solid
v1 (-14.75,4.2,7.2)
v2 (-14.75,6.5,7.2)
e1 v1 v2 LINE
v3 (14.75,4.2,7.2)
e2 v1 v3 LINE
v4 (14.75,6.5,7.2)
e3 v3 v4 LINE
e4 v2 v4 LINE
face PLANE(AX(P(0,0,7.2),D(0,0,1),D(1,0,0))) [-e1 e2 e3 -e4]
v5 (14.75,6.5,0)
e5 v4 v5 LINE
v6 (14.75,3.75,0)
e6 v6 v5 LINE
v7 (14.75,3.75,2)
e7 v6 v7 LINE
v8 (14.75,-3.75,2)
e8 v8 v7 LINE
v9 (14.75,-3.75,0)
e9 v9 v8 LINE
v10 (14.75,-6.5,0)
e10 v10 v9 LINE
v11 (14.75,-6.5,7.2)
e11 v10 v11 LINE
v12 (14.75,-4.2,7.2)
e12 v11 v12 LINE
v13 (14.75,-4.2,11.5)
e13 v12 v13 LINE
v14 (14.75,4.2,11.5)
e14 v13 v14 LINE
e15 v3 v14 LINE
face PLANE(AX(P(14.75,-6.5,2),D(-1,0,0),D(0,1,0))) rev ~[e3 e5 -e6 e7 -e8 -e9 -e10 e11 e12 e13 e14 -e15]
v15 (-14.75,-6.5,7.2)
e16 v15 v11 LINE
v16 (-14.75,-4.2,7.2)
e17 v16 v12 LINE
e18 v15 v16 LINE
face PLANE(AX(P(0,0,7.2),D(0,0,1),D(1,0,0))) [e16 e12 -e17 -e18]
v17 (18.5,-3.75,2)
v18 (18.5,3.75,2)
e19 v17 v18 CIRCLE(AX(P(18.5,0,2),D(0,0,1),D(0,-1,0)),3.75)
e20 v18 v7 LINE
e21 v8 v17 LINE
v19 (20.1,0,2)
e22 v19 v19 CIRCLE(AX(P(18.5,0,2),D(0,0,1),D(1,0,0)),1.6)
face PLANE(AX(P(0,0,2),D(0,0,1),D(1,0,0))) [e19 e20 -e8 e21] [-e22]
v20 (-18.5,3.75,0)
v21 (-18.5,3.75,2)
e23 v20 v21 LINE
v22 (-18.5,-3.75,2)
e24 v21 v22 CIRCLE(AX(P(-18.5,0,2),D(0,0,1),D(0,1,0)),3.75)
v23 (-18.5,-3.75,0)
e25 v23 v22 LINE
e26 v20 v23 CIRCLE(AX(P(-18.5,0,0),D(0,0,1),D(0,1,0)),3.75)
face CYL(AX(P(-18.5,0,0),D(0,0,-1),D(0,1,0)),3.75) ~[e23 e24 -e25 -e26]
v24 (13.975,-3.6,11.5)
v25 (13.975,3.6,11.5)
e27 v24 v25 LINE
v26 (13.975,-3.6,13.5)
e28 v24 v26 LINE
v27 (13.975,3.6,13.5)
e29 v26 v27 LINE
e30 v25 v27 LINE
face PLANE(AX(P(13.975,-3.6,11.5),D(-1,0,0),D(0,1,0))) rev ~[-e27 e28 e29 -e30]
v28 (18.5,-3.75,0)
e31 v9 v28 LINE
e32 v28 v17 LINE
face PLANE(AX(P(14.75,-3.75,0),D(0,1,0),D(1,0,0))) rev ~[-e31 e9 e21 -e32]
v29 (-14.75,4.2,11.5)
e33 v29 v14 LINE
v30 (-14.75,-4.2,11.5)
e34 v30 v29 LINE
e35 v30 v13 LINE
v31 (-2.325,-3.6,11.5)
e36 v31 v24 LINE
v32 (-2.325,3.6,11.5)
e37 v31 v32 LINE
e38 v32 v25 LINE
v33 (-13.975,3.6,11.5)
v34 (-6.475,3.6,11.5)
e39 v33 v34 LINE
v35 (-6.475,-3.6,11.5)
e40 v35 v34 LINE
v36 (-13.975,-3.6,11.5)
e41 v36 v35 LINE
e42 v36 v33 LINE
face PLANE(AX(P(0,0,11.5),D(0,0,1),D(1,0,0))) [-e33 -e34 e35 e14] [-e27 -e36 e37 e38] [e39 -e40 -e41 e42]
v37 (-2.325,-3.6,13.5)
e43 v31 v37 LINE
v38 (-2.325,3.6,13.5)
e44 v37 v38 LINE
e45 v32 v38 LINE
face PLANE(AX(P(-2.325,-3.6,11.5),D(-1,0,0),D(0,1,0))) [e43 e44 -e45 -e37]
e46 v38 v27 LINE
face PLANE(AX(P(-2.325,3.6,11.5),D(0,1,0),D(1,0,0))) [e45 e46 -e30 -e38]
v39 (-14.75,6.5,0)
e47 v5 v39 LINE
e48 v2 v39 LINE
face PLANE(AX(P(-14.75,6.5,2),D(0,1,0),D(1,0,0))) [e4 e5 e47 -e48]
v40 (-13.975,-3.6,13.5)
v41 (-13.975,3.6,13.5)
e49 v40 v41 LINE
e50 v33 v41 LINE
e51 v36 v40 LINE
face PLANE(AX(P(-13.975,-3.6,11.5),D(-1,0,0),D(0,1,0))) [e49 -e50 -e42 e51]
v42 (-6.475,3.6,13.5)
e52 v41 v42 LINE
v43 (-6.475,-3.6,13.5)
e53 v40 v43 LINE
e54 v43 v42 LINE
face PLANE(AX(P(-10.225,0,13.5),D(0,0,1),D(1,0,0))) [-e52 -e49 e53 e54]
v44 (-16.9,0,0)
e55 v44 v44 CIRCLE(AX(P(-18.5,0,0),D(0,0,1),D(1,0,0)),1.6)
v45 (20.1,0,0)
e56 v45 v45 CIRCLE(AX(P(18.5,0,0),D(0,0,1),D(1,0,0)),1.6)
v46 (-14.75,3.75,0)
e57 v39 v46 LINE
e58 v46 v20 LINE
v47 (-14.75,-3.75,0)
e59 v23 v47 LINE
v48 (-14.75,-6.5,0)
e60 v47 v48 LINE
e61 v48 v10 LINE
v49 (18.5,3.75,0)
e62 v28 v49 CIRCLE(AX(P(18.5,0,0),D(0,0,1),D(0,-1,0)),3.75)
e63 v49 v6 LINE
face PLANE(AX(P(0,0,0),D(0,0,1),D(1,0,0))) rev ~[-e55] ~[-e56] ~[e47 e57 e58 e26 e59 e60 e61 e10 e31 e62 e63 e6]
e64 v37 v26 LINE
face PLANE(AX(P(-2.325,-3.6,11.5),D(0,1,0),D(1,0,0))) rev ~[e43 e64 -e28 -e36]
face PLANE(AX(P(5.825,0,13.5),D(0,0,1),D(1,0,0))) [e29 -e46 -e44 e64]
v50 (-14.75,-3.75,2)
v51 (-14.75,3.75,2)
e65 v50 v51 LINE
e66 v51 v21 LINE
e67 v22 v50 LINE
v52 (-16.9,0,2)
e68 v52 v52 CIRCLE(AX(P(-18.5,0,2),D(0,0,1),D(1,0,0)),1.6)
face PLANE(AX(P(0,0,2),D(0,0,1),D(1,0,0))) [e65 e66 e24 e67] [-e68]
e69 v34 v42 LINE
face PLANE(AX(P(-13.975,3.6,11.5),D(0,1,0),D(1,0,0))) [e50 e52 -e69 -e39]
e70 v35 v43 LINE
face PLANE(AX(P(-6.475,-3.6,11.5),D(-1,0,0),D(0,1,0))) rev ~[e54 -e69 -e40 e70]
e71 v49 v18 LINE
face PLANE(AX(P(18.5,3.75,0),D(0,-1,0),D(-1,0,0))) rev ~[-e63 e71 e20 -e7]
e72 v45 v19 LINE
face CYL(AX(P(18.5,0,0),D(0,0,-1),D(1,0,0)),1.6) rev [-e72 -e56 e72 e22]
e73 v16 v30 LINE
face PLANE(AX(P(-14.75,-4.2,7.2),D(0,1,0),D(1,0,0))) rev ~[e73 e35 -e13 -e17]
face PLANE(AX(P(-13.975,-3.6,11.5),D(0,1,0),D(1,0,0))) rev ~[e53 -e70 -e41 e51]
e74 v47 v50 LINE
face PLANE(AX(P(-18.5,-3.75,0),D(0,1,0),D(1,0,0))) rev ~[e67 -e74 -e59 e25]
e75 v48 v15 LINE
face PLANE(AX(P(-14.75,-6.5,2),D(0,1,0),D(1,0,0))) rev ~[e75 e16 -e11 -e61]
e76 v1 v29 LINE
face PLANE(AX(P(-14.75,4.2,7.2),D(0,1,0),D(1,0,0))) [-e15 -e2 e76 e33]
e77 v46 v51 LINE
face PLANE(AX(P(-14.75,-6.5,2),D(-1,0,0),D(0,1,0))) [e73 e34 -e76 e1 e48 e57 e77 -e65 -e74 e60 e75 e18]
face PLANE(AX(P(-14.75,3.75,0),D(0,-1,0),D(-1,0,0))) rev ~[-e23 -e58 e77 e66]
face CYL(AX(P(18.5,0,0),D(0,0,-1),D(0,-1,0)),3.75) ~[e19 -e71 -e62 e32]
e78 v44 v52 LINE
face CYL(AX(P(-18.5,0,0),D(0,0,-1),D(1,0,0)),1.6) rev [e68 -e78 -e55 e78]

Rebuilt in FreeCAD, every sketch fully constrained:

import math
import FreeCAD as App
import Part
import Sketcher

V = App.Vector


def add_polygon(sketch, points):
    """Adds a closed chain of lines whose ends are joined by coincident constraints."""
    first, n = sketch.GeometryCount, len(points)
    for a, b in zip(points, points[1:] + points[:1]):
        sketch.addGeometry(Part.LineSegment(App.Vector(*a, 0), App.Vector(*b, 0)), False)
    for i in range(n):
        sketch.addConstraint(Sketcher.Constraint("Coincident", first + i, 2, first + (i + 1) % n, 1))

doc = App.newDocument("Part")
params = doc.addObject("Spreadsheet::Sheet", "Params")
for row, (alias, value) in enumerate([
    ("sketch1_diameter", "3.2 mm"),
    ("sketch1_radius", "3.75 mm"),
    ("sketch1_width", "29.5 mm"),
    ("sketch1_height", "2.75 mm"),
    ("pad1_length", "2 mm"),
    ("sketch2_height", "13 mm"),
    ("sketch2_width", "29.5 mm"),
    ("pad2_length", "5.2 mm"),
    ("sketch3_width", "29.5 mm"),
    ("sketch3_height", "8.4 mm"),
    ("pad3_length", "4.3 mm"),
    ("sketch4_width", "16.3 mm"),
    ("sketch4_width2", "7.5 mm"),
    ("sketch4_height", "7.2 mm"),
    ("pad4_length", "2 mm"),
], start=1):
    params.set(f"A{row}", alias)
    params.set(f"B{row}", "=" + value)
    params.setAlias(f"B{row}", alias)

body = doc.addObject("PartDesign::Body", "Body")

sketch1 = doc.addObject("Sketcher::SketchObject", "Sketch")
body.addObject(sketch1)
sketch1.AttachmentSupport = (doc.XY_Plane, [""])
sketch1.MapMode = "FlatFace"
sketch1.addGeometry(Part.LineSegment(V(14.8, 6.5, 0), V(-14.8, 6.5, 0)), False)
sketch1.addGeometry(Part.LineSegment(V(-14.8, 6.5, 0), V(-14.8, 3.8, 0)), False)
sketch1.addGeometry(Part.LineSegment(V(-14.8, 3.8, 0), V(-18.5, 3.8, 0)), False)
sketch1.addGeometry(Part.ArcOfCircle(Part.Circle(V(-18.5, 0, 0), V(0, 0, 1), 3.8), math.radians(90), math.radians(270)), False)
sketch1.addGeometry(Part.LineSegment(V(-18.5, -3.8, 0), V(-14.8, -3.8, 0)), False)
sketch1.addGeometry(Part.LineSegment(V(-14.8, -3.8, 0), V(-14.8, -6.5, 0)), False)
sketch1.addGeometry(Part.LineSegment(V(-14.8, -6.5, 0), V(14.8, -6.5, 0)), False)
sketch1.addGeometry(Part.LineSegment(V(14.8, -6.5, 0), V(14.8, -3.8, 0)), False)
sketch1.addGeometry(Part.LineSegment(V(14.8, -3.8, 0), V(18.5, -3.8, 0)), False)
sketch1.addGeometry(Part.ArcOfCircle(Part.Circle(V(18.5, 0, 0), V(0, 0, 1), 3.8), math.radians(-90), math.radians(90)), False)
sketch1.addGeometry(Part.LineSegment(V(18.5, 3.8, 0), V(14.8, 3.8, 0)), False)
sketch1.addGeometry(Part.LineSegment(V(14.8, 3.8, 0), V(14.8, 6.5, 0)), False)
sketch1.addGeometry(Part.Circle(V(-18.5, 0, 0), V(0, 0, 1), 1.6), False)
sketch1.addGeometry(Part.Circle(V(18.5, 0, 0), V(0, 0, 1), 1.6), False)
sketch1.addConstraint(Sketcher.Constraint("Coincident", 0, 2, 1, 1))
sketch1.addConstraint(Sketcher.Constraint("Coincident", 1, 2, 2, 1))
sketch1.addConstraint(Sketcher.Constraint("Tangent", 2, 2, 3, 1))
sketch1.addConstraint(Sketcher.Constraint("Tangent", 3, 2, 4, 1))
sketch1.addConstraint(Sketcher.Constraint("Coincident", 4, 2, 5, 1))
sketch1.addConstraint(Sketcher.Constraint("Coincident", 5, 2, 6, 1))
sketch1.addConstraint(Sketcher.Constraint("Coincident", 6, 2, 7, 1))
sketch1.addConstraint(Sketcher.Constraint("Coincident", 7, 2, 8, 1))
sketch1.addConstraint(Sketcher.Constraint("Tangent", 8, 2, 9, 1))
sketch1.addConstraint(Sketcher.Constraint("Tangent", 9, 2, 10, 1))
sketch1.addConstraint(Sketcher.Constraint("Coincident", 10, 2, 11, 1))
sketch1.addConstraint(Sketcher.Constraint("Coincident", 11, 2, 0, 1))
sketch1.addConstraint(Sketcher.Constraint("Horizontal", 0))
sketch1.addConstraint(Sketcher.Constraint("Vertical", 1))
sketch1.addConstraint(Sketcher.Constraint("Horizontal", 2))
sketch1.addConstraint(Sketcher.Constraint("Horizontal", 4))
sketch1.addConstraint(Sketcher.Constraint("Vertical", 5))
sketch1.addConstraint(Sketcher.Constraint("Horizontal", 6))
sketch1.addConstraint(Sketcher.Constraint("Vertical", 7))
sketch1.addConstraint(Sketcher.Constraint("Horizontal", 8))
sketch1.addConstraint(Sketcher.Constraint("Horizontal", 10))
sketch1.addConstraint(Sketcher.Constraint("Vertical", 11))
sketch1.addConstraint(Sketcher.Constraint("Coincident", 12, 3, 3, 3))
sketch1.addConstraint(Sketcher.Constraint("Coincident", 13, 3, 9, 3))
sketch1.addConstraint(Sketcher.Constraint("Equal", 3, 9))
sketch1.addConstraint(Sketcher.Constraint("Equal", 12, 13))
sketch1.addConstraint(Sketcher.Constraint("Symmetric", 3, 3, 9, 3, -1, 1))
sketch1.addConstraint(Sketcher.Constraint("Symmetric", 0, 2, 6, 2, -1, 1))
sketch1.addConstraint(Sketcher.Constraint("Symmetric", 4, 2, 7, 2, -2))
sketch1.addConstraint(Sketcher.Constraint("Vertical", 7, 2, 10, 2))
sketch1.addConstraint(Sketcher.Constraint("Diameter", 12, 3.2))
sketch1.addConstraint(Sketcher.Constraint("Radius", 3, 3.75))
sketch1.addConstraint(Sketcher.Constraint("DistanceX", 0, 2, 0, 1, 29.5))
sketch1.addConstraint(Sketcher.Constraint("DistanceX", 3, 3, 9, 3, 37.0))
sketch1.addConstraint(Sketcher.Constraint("DistanceY", 1, 2, 1, 1, 2.75))
sketch1.setExpression("Constraints[30]", "Params.sketch1_diameter")
sketch1.setExpression("Constraints[31]", "Params.sketch1_radius")
sketch1.setExpression("Constraints[32]", "Params.sketch1_width")
sketch1.setExpression("Constraints[34]", "Params.sketch1_height")
pad1 = doc.addObject("PartDesign::Pad", "Pad")
body.addObject(pad1)
pad1.Profile = sketch1
pad1.setExpression("Length", "Params.pad1_length")

sketch2 = doc.addObject("Sketcher::SketchObject", "Sketch001")
body.addObject(sketch2)
sketch2.AttachmentSupport = (doc.XY_Plane, [""])
sketch2.MapMode = "FlatFace"
sketch2.AttachmentOffset = App.Placement(V(0, 0, 2), App.Rotation())
add_polygon(sketch2, [(-15, 6), (-15, -6), (15, -6), (15, 6)])
sketch2.addConstraint(Sketcher.Constraint("Vertical", 0))
sketch2.addConstraint(Sketcher.Constraint("Horizontal", 1))
sketch2.addConstraint(Sketcher.Constraint("Vertical", 2))
sketch2.addConstraint(Sketcher.Constraint("Horizontal", 3))
sketch2.addConstraint(Sketcher.Constraint("Symmetric", 0, 2, 2, 2, -1, 1))
sketch2.addConstraint(Sketcher.Constraint("DistanceY", 0, 2, 0, 1, 13.0))
sketch2.addConstraint(Sketcher.Constraint("DistanceX", 1, 1, 1, 2, 29.5))
sketch2.setExpression("Constraints[9]", "Params.sketch2_height")
sketch2.setExpression("Constraints[10]", "Params.sketch2_width")
pad2 = doc.addObject("PartDesign::Pad", "Pad001")
body.addObject(pad2)
pad2.Profile = sketch2
pad2.setExpression("Length", "Params.pad2_length")

sketch3 = doc.addObject("Sketcher::SketchObject", "Sketch002")
body.addObject(sketch3)
sketch3.AttachmentSupport = (doc.XY_Plane, [""])
sketch3.MapMode = "FlatFace"
sketch3.AttachmentOffset = App.Placement(V(0, 0, 7.2), App.Rotation())
add_polygon(sketch3, [(-15, 4), (-15, -4), (15, -4), (15, 4)])
sketch3.addConstraint(Sketcher.Constraint("Vertical", 0))
sketch3.addConstraint(Sketcher.Constraint("Horizontal", 1))
sketch3.addConstraint(Sketcher.Constraint("Vertical", 2))
sketch3.addConstraint(Sketcher.Constraint("Horizontal", 3))
sketch3.addConstraint(Sketcher.Constraint("Symmetric", 0, 2, 2, 2, -1, 1))
sketch3.addConstraint(Sketcher.Constraint("DistanceX", 1, 1, 1, 2, 29.5))
sketch3.addConstraint(Sketcher.Constraint("DistanceY", 0, 2, 0, 1, 8.4))
sketch3.setExpression("Constraints[9]", "Params.sketch3_width")
sketch3.setExpression("Constraints[10]", "Params.sketch3_height")
pad3 = doc.addObject("PartDesign::Pad", "Pad002")
body.addObject(pad3)
pad3.Profile = sketch3
pad3.setExpression("Length", "Params.pad3_length")

sketch4 = doc.addObject("Sketcher::SketchObject", "Sketch003")
body.addObject(sketch4)
sketch4.AttachmentSupport = (doc.XY_Plane, [""])
sketch4.MapMode = "FlatFace"
sketch4.AttachmentOffset = App.Placement(V(0, 0, 11.5), App.Rotation())
add_polygon(sketch4, [(-2, 4), (-2, -4), (14, -4), (14, 4)])
add_polygon(sketch4, [(-14, 4), (-14, -4), (-6, -4), (-6, 4)])
sketch4.addConstraint(Sketcher.Constraint("Vertical", 0))
sketch4.addConstraint(Sketcher.Constraint("Horizontal", 1))
sketch4.addConstraint(Sketcher.Constraint("Vertical", 2))
sketch4.addConstraint(Sketcher.Constraint("Horizontal", 3))
sketch4.addConstraint(Sketcher.Constraint("Vertical", 4))
sketch4.addConstraint(Sketcher.Constraint("Horizontal", 5))
sketch4.addConstraint(Sketcher.Constraint("Vertical", 6))
sketch4.addConstraint(Sketcher.Constraint("Horizontal", 7))
sketch4.addConstraint(Sketcher.Constraint("Symmetric", 2, 2, 4, 2, -1, 1))
sketch4.addConstraint(Sketcher.Constraint("Horizontal", 1, 2, 4, 2))
sketch4.addConstraint(Sketcher.Constraint("Horizontal", 3, 2, 6, 2))
sketch4.addConstraint(Sketcher.Constraint("DistanceX", 1, 1, 1, 2, 16.3))
sketch4.addConstraint(Sketcher.Constraint("DistanceX", 5, 1, 5, 2, 7.5))
sketch4.addConstraint(Sketcher.Constraint("DistanceY", 0, 2, 0, 1, 7.2))
sketch4.addConstraint(Sketcher.Constraint("DistanceX", 4, 2, 0, 2, 11.65))
sketch4.setExpression("Constraints[19]", "Params.sketch4_width")
sketch4.setExpression("Constraints[20]", "Params.sketch4_width2")
sketch4.setExpression("Constraints[21]", "Params.sketch4_height")
pad4 = doc.addObject("PartDesign::Pad", "Pad003")
body.addObject(pad4)
pad4.Profile = sketch4
pad4.setExpression("Length", "Params.pad4_length")

doc.recompute()
